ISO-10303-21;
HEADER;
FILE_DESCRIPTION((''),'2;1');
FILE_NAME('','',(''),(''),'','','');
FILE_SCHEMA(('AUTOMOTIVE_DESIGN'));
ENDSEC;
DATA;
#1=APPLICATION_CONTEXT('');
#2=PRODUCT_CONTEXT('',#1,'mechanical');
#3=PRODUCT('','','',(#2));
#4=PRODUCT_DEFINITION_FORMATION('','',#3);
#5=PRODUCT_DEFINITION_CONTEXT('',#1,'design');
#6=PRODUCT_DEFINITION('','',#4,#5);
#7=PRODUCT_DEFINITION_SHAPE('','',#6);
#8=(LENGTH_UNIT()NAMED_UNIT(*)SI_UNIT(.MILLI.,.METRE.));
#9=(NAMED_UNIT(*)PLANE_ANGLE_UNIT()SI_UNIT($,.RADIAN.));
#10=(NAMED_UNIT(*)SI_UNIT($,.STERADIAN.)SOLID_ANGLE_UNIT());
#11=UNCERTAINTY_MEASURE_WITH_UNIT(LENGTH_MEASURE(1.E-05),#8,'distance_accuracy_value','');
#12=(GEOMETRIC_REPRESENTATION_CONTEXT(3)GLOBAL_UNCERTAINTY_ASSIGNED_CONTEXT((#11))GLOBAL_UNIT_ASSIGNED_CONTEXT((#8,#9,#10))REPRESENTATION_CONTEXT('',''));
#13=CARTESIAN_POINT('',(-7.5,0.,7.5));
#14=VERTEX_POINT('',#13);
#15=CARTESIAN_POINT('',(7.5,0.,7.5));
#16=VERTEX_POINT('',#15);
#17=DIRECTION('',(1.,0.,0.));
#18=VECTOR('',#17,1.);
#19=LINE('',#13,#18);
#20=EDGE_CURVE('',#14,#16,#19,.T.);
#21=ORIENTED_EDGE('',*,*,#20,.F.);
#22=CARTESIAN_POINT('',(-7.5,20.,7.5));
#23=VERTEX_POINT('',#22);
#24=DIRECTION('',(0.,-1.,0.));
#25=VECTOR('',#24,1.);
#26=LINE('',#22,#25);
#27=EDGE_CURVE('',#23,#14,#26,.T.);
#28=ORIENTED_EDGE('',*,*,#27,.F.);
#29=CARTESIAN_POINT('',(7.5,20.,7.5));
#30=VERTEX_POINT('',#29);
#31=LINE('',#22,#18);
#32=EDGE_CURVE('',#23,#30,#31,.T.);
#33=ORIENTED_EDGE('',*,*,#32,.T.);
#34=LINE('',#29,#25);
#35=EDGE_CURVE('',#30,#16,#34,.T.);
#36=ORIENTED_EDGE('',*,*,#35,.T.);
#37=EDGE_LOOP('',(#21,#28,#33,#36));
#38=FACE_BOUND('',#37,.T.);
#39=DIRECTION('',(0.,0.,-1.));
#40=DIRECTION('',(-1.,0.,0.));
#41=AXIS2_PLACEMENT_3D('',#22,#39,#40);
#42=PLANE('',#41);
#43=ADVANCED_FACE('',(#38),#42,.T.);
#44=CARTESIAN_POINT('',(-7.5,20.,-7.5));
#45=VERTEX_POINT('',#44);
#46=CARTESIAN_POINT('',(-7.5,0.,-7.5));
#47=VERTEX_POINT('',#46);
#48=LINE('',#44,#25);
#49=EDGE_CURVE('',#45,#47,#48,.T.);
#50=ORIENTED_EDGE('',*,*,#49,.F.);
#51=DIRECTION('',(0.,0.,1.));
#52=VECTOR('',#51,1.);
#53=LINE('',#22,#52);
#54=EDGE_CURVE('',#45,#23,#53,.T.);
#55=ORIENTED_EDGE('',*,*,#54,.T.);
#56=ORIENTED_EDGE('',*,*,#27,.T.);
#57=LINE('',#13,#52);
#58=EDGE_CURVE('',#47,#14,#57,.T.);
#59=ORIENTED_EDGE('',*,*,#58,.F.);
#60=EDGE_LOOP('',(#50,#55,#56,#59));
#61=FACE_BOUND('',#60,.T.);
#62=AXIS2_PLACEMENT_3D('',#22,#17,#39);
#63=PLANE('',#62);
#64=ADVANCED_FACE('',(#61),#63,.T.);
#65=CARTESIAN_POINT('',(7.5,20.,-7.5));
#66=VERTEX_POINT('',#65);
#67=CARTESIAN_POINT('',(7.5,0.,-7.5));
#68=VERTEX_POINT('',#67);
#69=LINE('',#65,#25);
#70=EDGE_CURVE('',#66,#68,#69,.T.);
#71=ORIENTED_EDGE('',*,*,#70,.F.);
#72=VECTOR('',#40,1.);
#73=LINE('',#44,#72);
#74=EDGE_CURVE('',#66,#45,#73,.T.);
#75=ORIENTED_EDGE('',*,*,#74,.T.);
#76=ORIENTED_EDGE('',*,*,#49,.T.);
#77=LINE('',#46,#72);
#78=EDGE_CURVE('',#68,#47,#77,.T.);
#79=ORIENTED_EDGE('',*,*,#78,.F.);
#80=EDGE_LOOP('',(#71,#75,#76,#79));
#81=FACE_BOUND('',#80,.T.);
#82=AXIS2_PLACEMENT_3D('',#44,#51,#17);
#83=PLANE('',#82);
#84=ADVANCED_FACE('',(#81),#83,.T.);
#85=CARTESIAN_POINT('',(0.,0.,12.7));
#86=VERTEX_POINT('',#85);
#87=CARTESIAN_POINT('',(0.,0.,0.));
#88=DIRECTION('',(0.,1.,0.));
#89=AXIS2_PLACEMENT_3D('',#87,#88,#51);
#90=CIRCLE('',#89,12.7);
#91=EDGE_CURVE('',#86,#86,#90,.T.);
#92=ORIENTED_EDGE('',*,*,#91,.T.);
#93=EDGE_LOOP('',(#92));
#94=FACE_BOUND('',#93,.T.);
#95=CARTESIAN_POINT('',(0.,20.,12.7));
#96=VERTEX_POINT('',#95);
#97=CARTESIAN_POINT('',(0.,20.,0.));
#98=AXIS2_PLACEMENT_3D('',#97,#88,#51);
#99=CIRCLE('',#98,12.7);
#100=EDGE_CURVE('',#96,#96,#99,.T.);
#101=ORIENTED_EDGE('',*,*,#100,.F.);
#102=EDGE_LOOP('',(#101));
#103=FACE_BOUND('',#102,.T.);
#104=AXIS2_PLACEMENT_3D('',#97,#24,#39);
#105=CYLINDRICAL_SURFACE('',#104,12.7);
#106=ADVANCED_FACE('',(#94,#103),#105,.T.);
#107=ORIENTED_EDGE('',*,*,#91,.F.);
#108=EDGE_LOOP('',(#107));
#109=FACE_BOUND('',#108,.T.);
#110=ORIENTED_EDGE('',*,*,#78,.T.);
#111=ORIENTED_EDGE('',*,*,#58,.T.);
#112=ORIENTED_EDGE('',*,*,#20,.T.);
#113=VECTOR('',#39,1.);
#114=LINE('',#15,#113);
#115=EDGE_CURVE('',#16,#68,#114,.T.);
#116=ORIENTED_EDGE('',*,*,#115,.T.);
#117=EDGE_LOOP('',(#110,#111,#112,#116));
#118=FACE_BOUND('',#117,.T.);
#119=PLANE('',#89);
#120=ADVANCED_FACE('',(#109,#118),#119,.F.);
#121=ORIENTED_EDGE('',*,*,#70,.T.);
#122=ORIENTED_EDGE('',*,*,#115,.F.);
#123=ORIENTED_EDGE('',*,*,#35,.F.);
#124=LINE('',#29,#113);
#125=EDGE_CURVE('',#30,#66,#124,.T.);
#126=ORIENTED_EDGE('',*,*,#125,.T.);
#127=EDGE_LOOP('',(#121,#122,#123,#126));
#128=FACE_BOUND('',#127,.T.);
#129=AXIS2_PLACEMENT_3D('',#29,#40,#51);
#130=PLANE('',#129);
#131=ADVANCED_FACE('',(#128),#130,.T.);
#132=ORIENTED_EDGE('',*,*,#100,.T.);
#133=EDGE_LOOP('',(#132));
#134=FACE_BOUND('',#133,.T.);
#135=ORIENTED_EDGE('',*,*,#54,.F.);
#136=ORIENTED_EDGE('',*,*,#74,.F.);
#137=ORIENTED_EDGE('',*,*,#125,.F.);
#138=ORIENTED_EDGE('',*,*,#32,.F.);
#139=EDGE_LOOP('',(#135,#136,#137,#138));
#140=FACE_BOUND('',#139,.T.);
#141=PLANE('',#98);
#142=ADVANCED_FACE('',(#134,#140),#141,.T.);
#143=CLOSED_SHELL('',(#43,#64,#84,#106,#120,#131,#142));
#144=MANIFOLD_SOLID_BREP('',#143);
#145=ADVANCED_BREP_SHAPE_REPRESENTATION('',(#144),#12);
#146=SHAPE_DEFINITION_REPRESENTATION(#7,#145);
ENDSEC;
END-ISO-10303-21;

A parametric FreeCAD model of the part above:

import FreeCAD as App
import Part
import Sketcher


def add_polygon(sketch, points):
    """Adds a closed chain of lines whose ends are joined by coincident constraints."""
    first, n = sketch.GeometryCount, len(points)
    for a, b in zip(points, points[1:] + points[:1]):
        sketch.addGeometry(Part.LineSegment(App.Vector(*a, 0), App.Vector(*b, 0)), False)
    for i in range(n):
        sketch.addConstraint(Sketcher.Constraint("Coincident", first + i, 2, first + (i + 1) % n, 1))

doc = App.newDocument("Part")
body = doc.addObject("PartDesign::Body", "Body")

# Sketch on XZ plane
sketch1 = body.newObject("Sketcher::SketchObject", "Sketch")
sketch1.AttachmentSupport = (doc.getObject("XZ_Plane"), [""])
sketch1.MapMode = "FlatFace"
sketch1.addGeometry(Part.Circle(App.Vector(0, 0, 0), App.Vector(0, 0, 1), 13), False)  # 0
add_polygon(sketch1, [(8, 8), (-8, 8), (-8, -8), (8, -8)])  # lines 1-4
sketch1.addConstraint(Sketcher.Constraint("Horizontal", 1))
sketch1.addConstraint(Sketcher.Constraint("Vertical", 2))
sketch1.addConstraint(Sketcher.Constraint("Horizontal", 3))
sketch1.addConstraint(Sketcher.Constraint("Vertical", 4))
sketch1.addConstraint(Sketcher.Constraint("Coincident", 0, 3, -1, 1))
sketch1.addConstraint(Sketcher.Constraint("Symmetric", 1, 2, 3, 2, -1, 1))
sketch1.addConstraint(Sketcher.Constraint("Equal", 3, 2))
sketch1.addConstraint(Sketcher.Constraint("Diameter", 0, 25.4))
sketch1.addConstraint(Sketcher.Constraint("DistanceX", 1, 2, 1, 1, 15.0))
pad1 = body.newObject("PartDesign::Pad", "Pad")
pad1.Profile = sketch1
pad1.Length = 20
pad1.Reversed = True

doc.recompute()
